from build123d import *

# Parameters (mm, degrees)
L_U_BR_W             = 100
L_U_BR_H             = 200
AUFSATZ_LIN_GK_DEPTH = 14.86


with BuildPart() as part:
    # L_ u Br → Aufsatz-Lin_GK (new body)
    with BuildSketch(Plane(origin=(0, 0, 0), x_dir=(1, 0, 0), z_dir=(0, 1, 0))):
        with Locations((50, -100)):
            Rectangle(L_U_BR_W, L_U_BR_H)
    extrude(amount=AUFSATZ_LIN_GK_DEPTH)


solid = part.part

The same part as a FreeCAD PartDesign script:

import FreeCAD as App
import Part
import Sketcher
from FreeCAD import Vector
Q = App.Units.Quantity


def add_polygon(sketch, points):
    """Adds a closed chain of lines whose ends are joined by coincident constraints."""
    first, n = sketch.GeometryCount, len(points)
    for a, b in zip(points, points[1:] + points[:1]):
        sketch.addGeometry(Part.LineSegment(App.Vector(*a, 0), App.Vector(*b, 0)), False)
    for i in range(n):
        sketch.addConstraint(Sketcher.Constraint("Coincident", first + i, 2, first + (i + 1) % n, 1))

doc = App.newDocument("Part")
body = doc.addObject("PartDesign::Body", "Body")

sketch1 = body.newObject("Sketcher::SketchObject", "Sketch")
sketch1.AttachmentSupport = (doc.getObject("XZ_Plane"), [""])
sketch1.MapMode = "FlatFace"
add_polygon(sketch1, [(0, 0), (0, 200), (100, 200), (100, 0)])
sketch1.addConstraint([
    Sketcher.Constraint("Vertical", 0),
    Sketcher.Constraint("Horizontal", 1),
    Sketcher.Constraint("Vertical", 2),
    Sketcher.Constraint("Horizontal", 3),
    Sketcher.Constraint("Coincident", 3, 2, -1, 1),
    Sketcher.Constraint("DistanceX", 1, 1, 1, 2, Q("100 mm")),
    Sketcher.Constraint("DistanceY", 0, 1, 0, 2, Q("200 mm")),
])
pad1 = body.newObject("PartDesign::Pad", "Pad")
pad1.Profile = sketch1
pad1.Length = 14.86
pad1.Reversed = True

doc.recompute()
